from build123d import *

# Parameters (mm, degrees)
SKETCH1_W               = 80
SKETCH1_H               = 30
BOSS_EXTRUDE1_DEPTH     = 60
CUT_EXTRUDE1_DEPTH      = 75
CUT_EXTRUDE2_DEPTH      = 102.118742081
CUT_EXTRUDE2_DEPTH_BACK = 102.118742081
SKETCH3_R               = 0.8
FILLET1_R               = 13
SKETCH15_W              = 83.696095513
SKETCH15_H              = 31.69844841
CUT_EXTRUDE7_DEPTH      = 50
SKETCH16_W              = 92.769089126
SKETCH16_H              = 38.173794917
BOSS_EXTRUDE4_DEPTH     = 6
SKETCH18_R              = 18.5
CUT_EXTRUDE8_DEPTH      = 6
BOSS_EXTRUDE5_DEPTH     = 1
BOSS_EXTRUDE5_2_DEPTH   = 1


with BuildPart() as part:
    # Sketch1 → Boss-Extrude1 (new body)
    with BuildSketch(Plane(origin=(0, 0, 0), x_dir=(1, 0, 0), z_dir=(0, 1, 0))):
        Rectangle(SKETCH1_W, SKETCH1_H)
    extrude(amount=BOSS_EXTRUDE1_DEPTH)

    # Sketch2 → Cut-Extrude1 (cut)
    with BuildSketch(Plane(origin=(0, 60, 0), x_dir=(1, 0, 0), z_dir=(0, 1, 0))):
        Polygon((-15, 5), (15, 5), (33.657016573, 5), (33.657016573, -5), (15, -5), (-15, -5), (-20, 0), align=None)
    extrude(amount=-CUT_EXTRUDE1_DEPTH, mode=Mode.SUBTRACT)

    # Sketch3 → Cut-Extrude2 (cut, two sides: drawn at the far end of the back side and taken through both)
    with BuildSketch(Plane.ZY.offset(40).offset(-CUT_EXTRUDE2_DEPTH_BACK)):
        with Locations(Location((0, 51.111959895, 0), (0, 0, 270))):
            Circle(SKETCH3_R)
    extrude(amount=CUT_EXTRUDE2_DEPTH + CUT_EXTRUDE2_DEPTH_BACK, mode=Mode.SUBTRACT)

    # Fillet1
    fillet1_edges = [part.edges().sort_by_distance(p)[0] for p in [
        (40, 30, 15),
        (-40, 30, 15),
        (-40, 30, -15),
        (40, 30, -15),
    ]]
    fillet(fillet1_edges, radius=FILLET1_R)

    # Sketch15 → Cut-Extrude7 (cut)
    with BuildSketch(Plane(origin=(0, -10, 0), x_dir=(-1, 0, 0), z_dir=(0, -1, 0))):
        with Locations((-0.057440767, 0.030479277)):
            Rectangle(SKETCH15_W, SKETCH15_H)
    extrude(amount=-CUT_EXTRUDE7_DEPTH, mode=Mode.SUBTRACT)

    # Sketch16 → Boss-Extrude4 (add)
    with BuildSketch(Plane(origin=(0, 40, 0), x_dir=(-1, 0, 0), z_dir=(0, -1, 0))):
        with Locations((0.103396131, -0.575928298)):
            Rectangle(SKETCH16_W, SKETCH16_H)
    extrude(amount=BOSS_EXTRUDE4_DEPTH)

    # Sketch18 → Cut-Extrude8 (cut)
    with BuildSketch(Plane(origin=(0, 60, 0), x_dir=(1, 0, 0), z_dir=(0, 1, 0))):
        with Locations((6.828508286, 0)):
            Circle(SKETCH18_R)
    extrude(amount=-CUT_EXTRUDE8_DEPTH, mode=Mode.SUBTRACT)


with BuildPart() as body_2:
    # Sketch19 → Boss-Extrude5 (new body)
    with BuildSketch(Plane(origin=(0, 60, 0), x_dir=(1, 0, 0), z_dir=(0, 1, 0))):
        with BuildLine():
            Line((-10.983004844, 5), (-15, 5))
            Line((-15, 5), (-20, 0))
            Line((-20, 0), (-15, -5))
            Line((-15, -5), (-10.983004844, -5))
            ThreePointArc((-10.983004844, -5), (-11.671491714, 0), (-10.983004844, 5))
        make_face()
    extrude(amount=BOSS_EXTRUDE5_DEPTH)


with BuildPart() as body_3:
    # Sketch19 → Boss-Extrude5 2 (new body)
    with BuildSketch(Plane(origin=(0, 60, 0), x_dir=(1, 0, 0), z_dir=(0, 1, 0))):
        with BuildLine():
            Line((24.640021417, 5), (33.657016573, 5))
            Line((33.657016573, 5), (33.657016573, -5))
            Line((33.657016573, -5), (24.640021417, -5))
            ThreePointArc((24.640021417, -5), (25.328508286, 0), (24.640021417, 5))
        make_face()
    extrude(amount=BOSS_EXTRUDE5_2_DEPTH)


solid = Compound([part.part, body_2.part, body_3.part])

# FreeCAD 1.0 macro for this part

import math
import FreeCAD as App
import Part
import Sketcher
Q = App.Units.Quantity


def edges_at(feature, points):
    """Names of the edges that pass closest to the given points."""
    edges = feature.Shape.Edges
    near = lambda p: min(range(len(edges)), key=lambda i: edges[i].distToShape(Part.Vertex(*p))[0])
    return sorted({f"Edge{near(p) + 1}" for p in points})


def add_polygon(sketch, points):
    """Adds a closed chain of lines whose ends are joined by coincident constraints."""
    first, n = sketch.GeometryCount, len(points)
    for a, b in zip(points, points[1:] + points[:1]):
        sketch.addGeometry(Part.LineSegment(App.Vector(*a, 0), App.Vector(*b, 0)), False)
    for i in range(n):
        sketch.addConstraint(Sketcher.Constraint("Coincident", first + i, 2, first + (i + 1) % n, 1))

doc = App.newDocument("Part")
body = doc.addObject("PartDesign::Body", "Body")

# Sketch on XZ plane
sketch1 = body.newObject("Sketcher::SketchObject", "Sketch")
sketch1.AttachmentSupport = (doc.getObject("XZ_Plane"), [""])
sketch1.MapMode = "FlatFace"
add_polygon(sketch1, [(-40, -15), (-40, 15), (40, 15), (40, -15)])  # lines 0-3
sketch1.addConstraint([
    Sketcher.Constraint("Vertical", 0),
    Sketcher.Constraint("Horizontal", 1),
    Sketcher.Constraint("Vertical", 2),
    Sketcher.Constraint("Horizontal", 3),
    Sketcher.Constraint("Symmetric", 0, 2, 2, 2, -1, 1),
    Sketcher.Constraint("DistanceX", 1, 1, 1, 2, Q("80 mm")),
    Sketcher.Constraint("DistanceY", 0, 1, 0, 2, Q("30 mm")),
])
pad1 = body.newObject("PartDesign::Pad", "Pad")
pad1.Profile = sketch1
pad1.Length = 60
pad1.Reversed = True

# Sketch on XZ plane
sketch2 = body.newObject("Sketcher::SketchObject", "Sketch001")
sketch2.AttachmentSupport = (doc.getObject("XZ_Plane"), [""])
sketch2.MapMode = "FlatFace"
sketch2.AttachmentOffset = App.Placement(App.Vector(0, 0, -60), App.Rotation())
add_polygon(sketch2, [(34, -5), (-15, -5), (-20, 0), (-15, 5), (34, 5)])  # lines 0-4
sketch2.addConstraint([
    Sketcher.Constraint("Horizontal", 0),
    Sketcher.Constraint("Horizontal", 3),
    Sketcher.Constraint("Vertical", 4),
    Sketcher.Constraint("Symmetric", 0, 2, 2, 2, -1),
    Sketcher.Constraint("PointOnObject", 1, 2, -1),
    Sketcher.Constraint("Perpendicular", 1, 2),
    Sketcher.Constraint("DistanceY", 4, 2, 4, 1, Q("10 mm")),
    Sketcher.Constraint("DistanceX", 0, 2, -1, 1, Q("15 mm")),
    Sketcher.Constraint("DistanceX", 0, 2, 0, 1, Q("48.657017 mm")),
])
pocket1 = body.newObject("PartDesign::Pocket", "Pocket")
pocket1.Profile = sketch2
pocket1.Length = 75
pocket1.Reversed = True

# Sketch on YZ plane
sketch3 = body.newObject("Sketcher::SketchObject", "Sketch002")
sketch3.AttachmentSupport = (doc.getObject("YZ_Plane"), [""])
sketch3.MapMode = "FlatFace"
sketch3.AttachmentOffset = App.Placement(App.Vector(0, 0, -40), App.Rotation())
sketch3.addGeometry(Part.Circle(App.Vector(51.1, 0, 0), App.Vector(0, 0, 1), 0.8), False)
sketch3.addConstraint([
    Sketcher.Constraint("PointOnObject", 0, 3, -1),
    Sketcher.Constraint("Diameter", 0, Q("1.6 mm")),
    Sketcher.Constraint("DistanceX", -1, 1, 0, 3, Q("51.11196 mm")),
])
pocket2 = body.newObject("PartDesign::Pocket", "Pocket001")
pocket2.Profile = sketch3
pocket2.Type = "ThroughAll"
pocket2.Midplane = True
doc.recompute()

fillet = body.newObject("PartDesign::Fillet", "Fillet")
fillet.Base = (pocket2, edges_at(pocket2, [
    (40, 30, 15),
    (-40, 30, 15),
    (-40, 30, -15),
    (40, 30, -15),
]))
fillet.Radius = 13

# Sketch on XZ plane
sketch4 = body.newObject("Sketcher::SketchObject", "Sketch003")
sketch4.AttachmentSupport = (doc.getObject("XZ_Plane"), [""])
sketch4.MapMode = "FlatFace"
sketch4.AttachmentOffset = App.Placement(App.Vector(0, 0, 10), App.Rotation())
add_polygon(sketch4, [(42, -16), (42, 16), (-42, 16), (-42, -16)])  # lines 0-3
sketch4.addConstraint([
    Sketcher.Constraint("Vertical", 0),
    Sketcher.Constraint("Horizontal", 1),
    Sketcher.Constraint("Vertical", 2),
    Sketcher.Constraint("Horizontal", 3),
    Sketcher.Constraint("DistanceY", 0, 1, 0, 2, Q("31.698448 mm")),
    Sketcher.Constraint("DistanceX", 1, 2, 1, 1, Q("83.696096 mm")),
    Sketcher.Constraint("DistanceX", -1, 1, 0, 2, Q("41.905489 mm")),
    Sketcher.Constraint("DistanceY", -1, 1, 0, 2, Q("15.818745 mm")),
])
pocket3 = body.newObject("PartDesign::Pocket", "Pocket002")
pocket3.Profile = sketch4
pocket3.Length = 50

# Sketch on XZ plane
sketch5 = body.newObject("Sketcher::SketchObject", "Sketch004")
sketch5.AttachmentSupport = (doc.getObject("XZ_Plane"), [""])
sketch5.MapMode = "FlatFace"
sketch5.AttachmentOffset = App.Placement(App.Vector(0, 0, -40), App.Rotation())
add_polygon(sketch5, [(46, -19), (46, 20), (-46, 20), (-46, -19)])  # lines 0-3
sketch5.addConstraint([
    Sketcher.Constraint("Vertical", 0),
    Sketcher.Constraint("Horizontal", 1),
    Sketcher.Constraint("Vertical", 2),
    Sketcher.Constraint("Horizontal", 3),
    Sketcher.Constraint("DistanceX", 1, 2, 1, 1, Q("92.769089 mm")),
    Sketcher.Constraint("DistanceY", 0, 1, 0, 2, Q("38.173795 mm")),
    Sketcher.Constraint("DistanceX", -1, 1, 0, 2, Q("46.281148 mm")),
    Sketcher.Constraint("DistanceY", 2, 2, -1, 1, Q("18.510969 mm")),
])
pad2 = body.newObject("PartDesign::Pad", "Pad001")
pad2.Profile = sketch5
pad2.Length = 6

# Sketch on XZ plane
sketch6 = body.newObject("Sketcher::SketchObject", "Sketch005")
sketch6.AttachmentSupport = (doc.getObject("XZ_Plane"), [""])
sketch6.MapMode = "FlatFace"
sketch6.AttachmentOffset = App.Placement(App.Vector(0, 0, -60), App.Rotation())
sketch6.addGeometry(Part.Circle(App.Vector(7, 0, 0), App.Vector(0, 0, 1), 18), False)
sketch6.addConstraint([
    Sketcher.Constraint("PointOnObject", 0, 3, -1),
    Sketcher.Constraint("Diameter", 0, Q("37 mm")),
    Sketcher.Constraint("DistanceX", -1, 1, 0, 3, Q("6.828508 mm")),
])
pocket4 = body.newObject("PartDesign::Pocket", "Pocket003")
pocket4.Profile = sketch6
pocket4.Length = 6
pocket4.Reversed = True
body2 = doc.addObject("PartDesign::Body", "Body001")

# Sketch on XZ plane
sketch7 = body2.newObject("Sketcher::SketchObject", "Sketch006")
sketch7.AttachmentSupport = (doc.getObject("XZ_Plane001"), [""])
sketch7.MapMode = "FlatFace"
sketch7.AttachmentOffset = App.Placement(App.Vector(0, 0, -60), App.Rotation())
sketch7.addGeometry([
    Part.LineSegment(App.Vector(-11, -5, 0), App.Vector(-15, -5, 0)),  # 0
    Part.LineSegment(App.Vector(-15, -5, 0), App.Vector(-20, 0, 0)),  # 1
    Part.LineSegment(App.Vector(-20, 0, 0), App.Vector(-15, 5, 0)),  # 2
    Part.LineSegment(App.Vector(-15, 5, 0), App.Vector(-11, 5, 0)),  # 3
    Part.ArcOfCircle(Part.Circle(App.Vector(6.8, 0, 0), App.Vector(0, 0, 1), 18.5), math.radians(164), math.radians(196)),  # 4
], False)
sketch7.addConstraint([
    Sketcher.Constraint("Coincident", 0, 2, 1, 1),
    Sketcher.Constraint("Coincident", 1, 2, 2, 1),
    Sketcher.Constraint("Coincident", 2, 2, 3, 1),
    Sketcher.Constraint("Coincident", 3, 2, 4, 1),
    Sketcher.Constraint("Coincident", 4, 2, 0, 1),
    Sketcher.Constraint("Horizontal", 0),
    Sketcher.Constraint("Horizontal", 3),
    Sketcher.Constraint("Symmetric", 0, 2, 2, 2, -1),
    Sketcher.Constraint("PointOnObject", 4, 3, -1),
    Sketcher.Constraint("PointOnObject", 1, 2, -1),
    Sketcher.Constraint("Perpendicular", 1, 2),
    Sketcher.Constraint("Radius", 4, Q("18.5 mm")),
    Sketcher.Constraint("DistanceX", 0, 2, -1, 1, Q("15 mm")),
    Sketcher.Constraint("DistanceY", 0, 2, -1, 1, Q("5 mm")),
    Sketcher.Constraint("DistanceX", 0, 2, 0, 1, Q("4.016995 mm")),
])
pad3 = body2.newObject("PartDesign::Pad", "Pad002")
pad3.Profile = sketch7
pad3.Length = 1
pad3.Reversed = True
body3 = doc.addObject("PartDesign::Body", "Body002")

# Sketch on XZ plane
sketch8 = body3.newObject("Sketcher::SketchObject", "Sketch007")
sketch8.AttachmentSupport = (doc.getObject("XZ_Plane002"), [""])
sketch8.MapMode = "FlatFace"
sketch8.AttachmentOffset = App.Placement(App.Vector(0, 0, -60), App.Rotation())
sketch8.addGeometry([
    Part.LineSegment(App.Vector(34, -5, 0), App.Vector(25, -5, 0)),
    Part.ArcOfCircle(Part.Circle(App.Vector(7, 0, 0), App.Vector(0, 0, 1), 19), math.radians(-16), math.radians(16)),
    Part.LineSegment(App.Vector(25, 5, 0), App.Vector(34, 5, 0)),
    Part.LineSegment(App.Vector(34, 5, 0), App.Vector(34, -5, 0)),
], False)
sketch8.addConstraint([
    Sketcher.Constraint("Coincident", 0, 2, 1, 1),
    Sketcher.Constraint("Coincident", 1, 2, 2, 1),
    Sketcher.Constraint("Coincident", 2, 2, 3, 1),
    Sketcher.Constraint("Coincident", 3, 2, 0, 1),
    Sketcher.Constraint("Horizontal", 0),
    Sketcher.Constraint("Horizontal", 2),
    Sketcher.Constraint("Vertical", 3),
    Sketcher.Constraint("Symmetric", 0, 2, 1, 2, -1),
    Sketcher.Constraint("Radius", 1, Q("18.5 mm")),
    Sketcher.Constraint("DistanceY", 3, 2, 3, 1, Q("10 mm")),
    Sketcher.Constraint("DistanceX", 0, 2, 0, 1, Q("9.016995 mm")),
    Sketcher.Constraint("DistanceX", -1, 1, 1, 3, Q("6.828508 mm")),
])
pad4 = body3.newObject("PartDesign::Pad", "Pad003")
pad4.Profile = sketch8
pad4.Length = 1
pad4.Reversed = True

doc.recompute()
